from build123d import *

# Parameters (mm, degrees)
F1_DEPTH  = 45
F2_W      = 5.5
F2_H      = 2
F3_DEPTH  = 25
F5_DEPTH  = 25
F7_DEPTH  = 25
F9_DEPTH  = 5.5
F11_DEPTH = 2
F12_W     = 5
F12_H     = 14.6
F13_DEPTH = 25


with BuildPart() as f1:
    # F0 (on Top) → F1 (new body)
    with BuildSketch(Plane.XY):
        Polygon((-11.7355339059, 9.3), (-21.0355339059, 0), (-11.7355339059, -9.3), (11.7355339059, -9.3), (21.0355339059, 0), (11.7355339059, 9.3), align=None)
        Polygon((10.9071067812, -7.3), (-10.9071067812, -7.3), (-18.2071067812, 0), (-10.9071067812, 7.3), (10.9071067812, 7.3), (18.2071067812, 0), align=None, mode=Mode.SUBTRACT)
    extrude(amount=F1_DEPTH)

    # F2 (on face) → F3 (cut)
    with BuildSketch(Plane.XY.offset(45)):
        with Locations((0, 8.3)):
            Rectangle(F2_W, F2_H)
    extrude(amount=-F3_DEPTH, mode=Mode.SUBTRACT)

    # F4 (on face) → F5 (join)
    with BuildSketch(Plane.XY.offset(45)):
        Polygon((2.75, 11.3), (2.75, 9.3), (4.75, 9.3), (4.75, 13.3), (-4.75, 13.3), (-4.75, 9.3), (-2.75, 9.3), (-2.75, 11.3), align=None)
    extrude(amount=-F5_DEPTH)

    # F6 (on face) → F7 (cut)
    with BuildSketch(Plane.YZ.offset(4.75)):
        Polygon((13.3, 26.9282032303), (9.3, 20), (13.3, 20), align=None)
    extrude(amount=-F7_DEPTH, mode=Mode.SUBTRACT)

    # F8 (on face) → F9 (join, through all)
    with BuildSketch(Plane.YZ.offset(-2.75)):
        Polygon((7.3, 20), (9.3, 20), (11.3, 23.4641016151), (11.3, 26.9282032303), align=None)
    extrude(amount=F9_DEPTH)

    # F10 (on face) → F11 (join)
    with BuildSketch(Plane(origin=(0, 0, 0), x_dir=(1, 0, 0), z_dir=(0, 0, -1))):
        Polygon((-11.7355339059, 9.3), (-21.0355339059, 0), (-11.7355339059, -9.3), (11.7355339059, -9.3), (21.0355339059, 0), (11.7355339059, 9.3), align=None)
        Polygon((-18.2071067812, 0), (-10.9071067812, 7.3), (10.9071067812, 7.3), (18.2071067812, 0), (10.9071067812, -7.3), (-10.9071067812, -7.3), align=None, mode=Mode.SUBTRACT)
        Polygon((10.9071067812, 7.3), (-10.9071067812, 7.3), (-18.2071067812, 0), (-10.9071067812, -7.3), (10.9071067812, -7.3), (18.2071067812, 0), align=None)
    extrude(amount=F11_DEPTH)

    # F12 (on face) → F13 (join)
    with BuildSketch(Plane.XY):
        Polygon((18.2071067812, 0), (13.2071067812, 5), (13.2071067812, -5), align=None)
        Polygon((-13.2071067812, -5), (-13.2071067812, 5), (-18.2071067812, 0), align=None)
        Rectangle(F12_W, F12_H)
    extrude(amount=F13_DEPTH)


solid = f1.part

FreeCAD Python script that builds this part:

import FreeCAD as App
import Part
import Sketcher
Q = App.Units.Quantity


def add_polygon(sketch, points):
    """Adds a closed chain of lines whose ends are joined by coincident constraints."""
    first, n = sketch.GeometryCount, len(points)
    for a, b in zip(points, points[1:] + points[:1]):
        sketch.addGeometry(Part.LineSegment(App.Vector(*a, 0), App.Vector(*b, 0)), False)
    for i in range(n):
        sketch.addConstraint(Sketcher.Constraint("Coincident", first + i, 2, first + (i + 1) % n, 1))

doc = App.newDocument("Part")
body = doc.addObject("PartDesign::Body", "Body")

sketch1 = body.newObject("Sketcher::SketchObject", "Sketch")
sketch1.AttachmentSupport = (doc.getObject("XY_Plane"), [""])
sketch1.MapMode = "FlatFace"
add_polygon(sketch1, [(-12, 9), (-21, 0), (-12, -9), (12, -9), (21, 0), (12, 9)])
add_polygon(sketch1, [(18, 0), (11, -7), (-11, -7), (-18, 0), (-11, 7), (11, 7)])
sketch1.addConstraint([
    Sketcher.Constraint("Horizontal", 2),
    Sketcher.Constraint("Horizontal", 5),
    Sketcher.Constraint("Horizontal", 7),
    Sketcher.Constraint("Horizontal", 10),
    Sketcher.Constraint("Symmetric", 0, 2, 3, 2, -1, 1),
    Sketcher.Constraint("Symmetric", 1, 2, 4, 2, -1, 1),
    Sketcher.Constraint("Symmetric", 6, 2, 9, 2, -1, 1),
    Sketcher.Constraint("Symmetric", 8, 2, 11, 2, -1, 1),
    Sketcher.Constraint("PointOnObject", 0, 2, -1),
    Sketcher.Constraint("PointOnObject", 8, 2, -1),
    Sketcher.Constraint("Perpendicular", 0, 1),
    Sketcher.Constraint("Perpendicular", 1, 3),
    Sketcher.Constraint("Perpendicular", 4, 6),
    Sketcher.Constraint("Perpendicular", 6, 8),
    Sketcher.Constraint("Perpendicular", 9, 11),
    Sketcher.Constraint("Vertical", 2, 2, 4, 2),
    Sketcher.Constraint("DistanceY", 2, 2, 6, 2, Q("2 mm")),
    Sketcher.Constraint("DistanceY", 1, 2, -1, 1, Q("9.3 mm")),
    Sketcher.Constraint("DistanceX", 2, 1, 2, 2, Q("23.471068 mm")),
    Sketcher.Constraint("DistanceX", 7, 2, 7, 1, Q("21.814214 mm")),
])
pad1 = body.newObject("PartDesign::Pad", "Pad")
pad1.Profile = sketch1
pad1.Length = 45

sketch2 = body.newObject("Sketcher::SketchObject", "Sketch001")
sketch2.AttachmentSupport = (doc.getObject("XY_Plane"), [""])
sketch2.MapMode = "FlatFace"
sketch2.AttachmentOffset = App.Placement(App.Vector(0, 0, 45), App.Rotation())
add_polygon(sketch2, [(-2.8, 9.3), (-2.8, 7.3), (2.8, 7.3), (2.8, 9.3)])
sketch2.addConstraint([
    Sketcher.Constraint("Vertical", 0),
    Sketcher.Constraint("Horizontal", 1),
    Sketcher.Constraint("Vertical", 2),
    Sketcher.Constraint("Horizontal", 3),
    Sketcher.Constraint("DistanceY", 0, 2, 0, 1, Q("2 mm")),
    Sketcher.Constraint("DistanceX", 1, 1, 1, 2, Q("5.5 mm")),
    Sketcher.Constraint("DistanceY", -1, 1, 0, 2, Q("7.3 mm")),
    Sketcher.Constraint("DistanceX", 0, 2, -1, 1, Q("2.75 mm")),
])
pocket1 = body.newObject("PartDesign::Pocket", "Pocket")
pocket1.Profile = sketch2
pocket1.Length = 25

sketch3 = body.newObject("Sketcher::SketchObject", "Sketch002")
sketch3.AttachmentSupport = (doc.getObject("XY_Plane"), [""])
sketch3.MapMode = "FlatFace"
sketch3.AttachmentOffset = App.Placement(App.Vector(0, 0, 45), App.Rotation())
add_polygon(sketch3, [(2.8, 11.3), (2.8, 9.3), (4.8, 9.3), (4.8, 13.3), (-4.8, 13.3), (-4.8, 9.3), (-2.8, 9.3), (-2.8, 11.3)])
sketch3.addConstraint([
    Sketcher.Constraint("Vertical", 0),
    Sketcher.Constraint("Horizontal", 1),
    Sketcher.Constraint("Vertical", 2),
    Sketcher.Constraint("Horizontal", 3),
    Sketcher.Constraint("Vertical", 4),
    Sketcher.Constraint("Horizontal", 5),
    Sketcher.Constraint("Vertical", 6),
    Sketcher.Constraint("Horizontal", 7),
    Sketcher.Constraint("Symmetric", 1, 2, 4, 2, -2),
    Sketcher.Constraint("Equal", 1, 5),
    Sketcher.Constraint("Equal", 5, 0),
    Sketcher.Constraint("DistanceX", 1, 1, 1, 2, Q("2 mm")),
    Sketcher.Constraint("DistanceY", 2, 1, 2, 2, Q("4 mm")),
    Sketcher.Constraint("DistanceX", 3, 2, 3, 1, Q("9.5 mm")),
    Sketcher.Constraint("DistanceY", -1, 1, 0, 2, Q("9.3 mm")),
])
pad2 = body.newObject("PartDesign::Pad", "Pad001")
pad2.Profile = sketch3
pad2.Length = 25
pad2.Reversed = True

sketch4 = body.newObject("Sketcher::SketchObject", "Sketch003")
sketch4.AttachmentSupport = (doc.getObject("YZ_Plane"), [""])
sketch4.MapMode = "FlatFace"
sketch4.AttachmentOffset = App.Placement(App.Vector(0, 0, 4.75), App.Rotation())
add_polygon(sketch4, [(13.3, 26.9), (9.3, 20), (13.3, 20)])
sketch4.addConstraint([
    Sketcher.Constraint("Horizontal", 1),
    Sketcher.Constraint("Vertical", 2),
    Sketcher.Constraint("DistanceX", 1, 1, 1, 2, Q("4 mm")),
    Sketcher.Constraint("Angle", 0, Q("-120 deg")),
    Sketcher.Constraint("DistanceY", -1, 1, 0, 2, Q("20 mm")),
    Sketcher.Constraint("DistanceX", -1, 1, 0, 2, Q("9.3 mm")),
])
pocket2 = body.newObject("PartDesign::Pocket", "Pocket001")
pocket2.Profile = sketch4
pocket2.Length = 25

sketch5 = body.newObject("Sketcher::SketchObject", "Sketch004")
sketch5.AttachmentSupport = (doc.getObject("YZ_Plane"), [""])
sketch5.MapMode = "FlatFace"
sketch5.AttachmentOffset = App.Placement(App.Vector(0, 0, -2.75), App.Rotation())
add_polygon(sketch5, [(7.3, 20), (9.3, 20), (11.3, 23.5), (11.3, 26.9)])
sketch5.addConstraint([
    Sketcher.Constraint("Horizontal", 0),
    Sketcher.Constraint("Vertical", 2),
    Sketcher.Constraint("Parallel", 1, 3),
    Sketcher.Constraint("DistanceX", 0, 1, 0, 2, Q("2 mm")),
    Sketcher.Constraint("Angle", 1, Q("60 deg")),
    Sketcher.Constraint("Distance", 1, Q("4 mm")),
    Sketcher.Constraint("DistanceY", -1, 1, 0, 2, Q("20 mm")),
    Sketcher.Constraint("DistanceX", -1, 1, 0, 2, Q("9.3 mm")),
])
pad3 = body.newObject("PartDesign::Pad", "Pad002")
pad3.Profile = sketch5
pad3.Type = "UpToLast"

sketch6 = body.newObject("Sketcher::SketchObject", "Sketch005")
sketch6.AttachmentSupport = (doc.getObject("XY_Plane"), [""])
sketch6.MapMode = "FlatFace"
add_polygon(sketch6, [(-12, -9), (-21, 0), (-12, 9), (12, 9), (21, 0), (12, -9)])
sketch6.addConstraint([
    Sketcher.Constraint("Horizontal", 2),
    Sketcher.Constraint("Horizontal", 5),
    Sketcher.Constraint("Symmetric", 0, 2, 3, 2, -1, 1),
    Sketcher.Constraint("Symmetric", 1, 2, 4, 2, -1, 1),
    Sketcher.Constraint("PointOnObject", 0, 2, -1),
    Sketcher.Constraint("Perpendicular", 0, 1),
    Sketcher.Constraint("Perpendicular", 1, 3),
    Sketcher.Constraint("Vertical", 2, 2, 4, 2),
    Sketcher.Constraint("DistanceY", -1, 1, 1, 2, Q("9.3 mm")),
    Sketcher.Constraint("DistanceX", 2, 1, 2, 2, Q("23.471068 mm")),
])
pad4 = body.newObject("PartDesign::Pad", "Pad003")
pad4.Profile = sketch6
pad4.Length = 2
pad4.Reversed = True

sketch7 = body.newObject("Sketcher::SketchObject", "Sketch006")
sketch7.AttachmentSupport = (doc.getObject("XY_Plane"), [""])
sketch7.MapMode = "FlatFace"
add_polygon(sketch7, [(18, 0), (13, 5), (13, -5)])
add_polygon(sketch7, [(-13, -5), (-13, 5), (-18, 0)])
add_polygon(sketch7, [(-2, 7), (-2, -7), (2, -7), (2, 7)])
sketch7.addConstraint([
    Sketcher.Constraint("Vertical", 1),
    Sketcher.Constraint("Vertical", 3),
    Sketcher.Constraint("Vertical", 6),
    Sketcher.Constraint("Horizontal", 7),
    Sketcher.Constraint("Vertical", 8),
    Sketcher.Constraint("Horizontal", 9),
    Sketcher.Constraint("Symmetric", 1, 2, 3, 2, -1, 1),
    Sketcher.Constraint("Symmetric", 2, 2, 4, 2, -1, 1),
    Sketcher.Constraint("Symmetric", 6, 2, 8, 2, -1, 1),
    Sketcher.Constraint("PointOnObject", 2, 2, -1),
    Sketcher.Constraint("Perpendicular", 0, 2),
    Sketcher.Constraint("Perpendicular", 4, 5),
    Sketcher.Constraint("Horizontal", 0, 2, 3, 2),
    Sketcher.Constraint("DistanceX", 7, 1, 7, 2, Q("5 mm")),
    Sketcher.Constraint("DistanceY", 1, 2, 1, 1, Q("10 mm")),
    Sketcher.Constraint("DistanceY", 6, 2, 6, 1, Q("14.6 mm")),
    Sketcher.Constraint("DistanceX", -1, 1, 0, 2, Q("13.207107 mm")),
])
pad5 = body.newObject("PartDesign::Pad", "Pad004")
pad5.Profile = sketch7
pad5.Length = 25

doc.recompute()
